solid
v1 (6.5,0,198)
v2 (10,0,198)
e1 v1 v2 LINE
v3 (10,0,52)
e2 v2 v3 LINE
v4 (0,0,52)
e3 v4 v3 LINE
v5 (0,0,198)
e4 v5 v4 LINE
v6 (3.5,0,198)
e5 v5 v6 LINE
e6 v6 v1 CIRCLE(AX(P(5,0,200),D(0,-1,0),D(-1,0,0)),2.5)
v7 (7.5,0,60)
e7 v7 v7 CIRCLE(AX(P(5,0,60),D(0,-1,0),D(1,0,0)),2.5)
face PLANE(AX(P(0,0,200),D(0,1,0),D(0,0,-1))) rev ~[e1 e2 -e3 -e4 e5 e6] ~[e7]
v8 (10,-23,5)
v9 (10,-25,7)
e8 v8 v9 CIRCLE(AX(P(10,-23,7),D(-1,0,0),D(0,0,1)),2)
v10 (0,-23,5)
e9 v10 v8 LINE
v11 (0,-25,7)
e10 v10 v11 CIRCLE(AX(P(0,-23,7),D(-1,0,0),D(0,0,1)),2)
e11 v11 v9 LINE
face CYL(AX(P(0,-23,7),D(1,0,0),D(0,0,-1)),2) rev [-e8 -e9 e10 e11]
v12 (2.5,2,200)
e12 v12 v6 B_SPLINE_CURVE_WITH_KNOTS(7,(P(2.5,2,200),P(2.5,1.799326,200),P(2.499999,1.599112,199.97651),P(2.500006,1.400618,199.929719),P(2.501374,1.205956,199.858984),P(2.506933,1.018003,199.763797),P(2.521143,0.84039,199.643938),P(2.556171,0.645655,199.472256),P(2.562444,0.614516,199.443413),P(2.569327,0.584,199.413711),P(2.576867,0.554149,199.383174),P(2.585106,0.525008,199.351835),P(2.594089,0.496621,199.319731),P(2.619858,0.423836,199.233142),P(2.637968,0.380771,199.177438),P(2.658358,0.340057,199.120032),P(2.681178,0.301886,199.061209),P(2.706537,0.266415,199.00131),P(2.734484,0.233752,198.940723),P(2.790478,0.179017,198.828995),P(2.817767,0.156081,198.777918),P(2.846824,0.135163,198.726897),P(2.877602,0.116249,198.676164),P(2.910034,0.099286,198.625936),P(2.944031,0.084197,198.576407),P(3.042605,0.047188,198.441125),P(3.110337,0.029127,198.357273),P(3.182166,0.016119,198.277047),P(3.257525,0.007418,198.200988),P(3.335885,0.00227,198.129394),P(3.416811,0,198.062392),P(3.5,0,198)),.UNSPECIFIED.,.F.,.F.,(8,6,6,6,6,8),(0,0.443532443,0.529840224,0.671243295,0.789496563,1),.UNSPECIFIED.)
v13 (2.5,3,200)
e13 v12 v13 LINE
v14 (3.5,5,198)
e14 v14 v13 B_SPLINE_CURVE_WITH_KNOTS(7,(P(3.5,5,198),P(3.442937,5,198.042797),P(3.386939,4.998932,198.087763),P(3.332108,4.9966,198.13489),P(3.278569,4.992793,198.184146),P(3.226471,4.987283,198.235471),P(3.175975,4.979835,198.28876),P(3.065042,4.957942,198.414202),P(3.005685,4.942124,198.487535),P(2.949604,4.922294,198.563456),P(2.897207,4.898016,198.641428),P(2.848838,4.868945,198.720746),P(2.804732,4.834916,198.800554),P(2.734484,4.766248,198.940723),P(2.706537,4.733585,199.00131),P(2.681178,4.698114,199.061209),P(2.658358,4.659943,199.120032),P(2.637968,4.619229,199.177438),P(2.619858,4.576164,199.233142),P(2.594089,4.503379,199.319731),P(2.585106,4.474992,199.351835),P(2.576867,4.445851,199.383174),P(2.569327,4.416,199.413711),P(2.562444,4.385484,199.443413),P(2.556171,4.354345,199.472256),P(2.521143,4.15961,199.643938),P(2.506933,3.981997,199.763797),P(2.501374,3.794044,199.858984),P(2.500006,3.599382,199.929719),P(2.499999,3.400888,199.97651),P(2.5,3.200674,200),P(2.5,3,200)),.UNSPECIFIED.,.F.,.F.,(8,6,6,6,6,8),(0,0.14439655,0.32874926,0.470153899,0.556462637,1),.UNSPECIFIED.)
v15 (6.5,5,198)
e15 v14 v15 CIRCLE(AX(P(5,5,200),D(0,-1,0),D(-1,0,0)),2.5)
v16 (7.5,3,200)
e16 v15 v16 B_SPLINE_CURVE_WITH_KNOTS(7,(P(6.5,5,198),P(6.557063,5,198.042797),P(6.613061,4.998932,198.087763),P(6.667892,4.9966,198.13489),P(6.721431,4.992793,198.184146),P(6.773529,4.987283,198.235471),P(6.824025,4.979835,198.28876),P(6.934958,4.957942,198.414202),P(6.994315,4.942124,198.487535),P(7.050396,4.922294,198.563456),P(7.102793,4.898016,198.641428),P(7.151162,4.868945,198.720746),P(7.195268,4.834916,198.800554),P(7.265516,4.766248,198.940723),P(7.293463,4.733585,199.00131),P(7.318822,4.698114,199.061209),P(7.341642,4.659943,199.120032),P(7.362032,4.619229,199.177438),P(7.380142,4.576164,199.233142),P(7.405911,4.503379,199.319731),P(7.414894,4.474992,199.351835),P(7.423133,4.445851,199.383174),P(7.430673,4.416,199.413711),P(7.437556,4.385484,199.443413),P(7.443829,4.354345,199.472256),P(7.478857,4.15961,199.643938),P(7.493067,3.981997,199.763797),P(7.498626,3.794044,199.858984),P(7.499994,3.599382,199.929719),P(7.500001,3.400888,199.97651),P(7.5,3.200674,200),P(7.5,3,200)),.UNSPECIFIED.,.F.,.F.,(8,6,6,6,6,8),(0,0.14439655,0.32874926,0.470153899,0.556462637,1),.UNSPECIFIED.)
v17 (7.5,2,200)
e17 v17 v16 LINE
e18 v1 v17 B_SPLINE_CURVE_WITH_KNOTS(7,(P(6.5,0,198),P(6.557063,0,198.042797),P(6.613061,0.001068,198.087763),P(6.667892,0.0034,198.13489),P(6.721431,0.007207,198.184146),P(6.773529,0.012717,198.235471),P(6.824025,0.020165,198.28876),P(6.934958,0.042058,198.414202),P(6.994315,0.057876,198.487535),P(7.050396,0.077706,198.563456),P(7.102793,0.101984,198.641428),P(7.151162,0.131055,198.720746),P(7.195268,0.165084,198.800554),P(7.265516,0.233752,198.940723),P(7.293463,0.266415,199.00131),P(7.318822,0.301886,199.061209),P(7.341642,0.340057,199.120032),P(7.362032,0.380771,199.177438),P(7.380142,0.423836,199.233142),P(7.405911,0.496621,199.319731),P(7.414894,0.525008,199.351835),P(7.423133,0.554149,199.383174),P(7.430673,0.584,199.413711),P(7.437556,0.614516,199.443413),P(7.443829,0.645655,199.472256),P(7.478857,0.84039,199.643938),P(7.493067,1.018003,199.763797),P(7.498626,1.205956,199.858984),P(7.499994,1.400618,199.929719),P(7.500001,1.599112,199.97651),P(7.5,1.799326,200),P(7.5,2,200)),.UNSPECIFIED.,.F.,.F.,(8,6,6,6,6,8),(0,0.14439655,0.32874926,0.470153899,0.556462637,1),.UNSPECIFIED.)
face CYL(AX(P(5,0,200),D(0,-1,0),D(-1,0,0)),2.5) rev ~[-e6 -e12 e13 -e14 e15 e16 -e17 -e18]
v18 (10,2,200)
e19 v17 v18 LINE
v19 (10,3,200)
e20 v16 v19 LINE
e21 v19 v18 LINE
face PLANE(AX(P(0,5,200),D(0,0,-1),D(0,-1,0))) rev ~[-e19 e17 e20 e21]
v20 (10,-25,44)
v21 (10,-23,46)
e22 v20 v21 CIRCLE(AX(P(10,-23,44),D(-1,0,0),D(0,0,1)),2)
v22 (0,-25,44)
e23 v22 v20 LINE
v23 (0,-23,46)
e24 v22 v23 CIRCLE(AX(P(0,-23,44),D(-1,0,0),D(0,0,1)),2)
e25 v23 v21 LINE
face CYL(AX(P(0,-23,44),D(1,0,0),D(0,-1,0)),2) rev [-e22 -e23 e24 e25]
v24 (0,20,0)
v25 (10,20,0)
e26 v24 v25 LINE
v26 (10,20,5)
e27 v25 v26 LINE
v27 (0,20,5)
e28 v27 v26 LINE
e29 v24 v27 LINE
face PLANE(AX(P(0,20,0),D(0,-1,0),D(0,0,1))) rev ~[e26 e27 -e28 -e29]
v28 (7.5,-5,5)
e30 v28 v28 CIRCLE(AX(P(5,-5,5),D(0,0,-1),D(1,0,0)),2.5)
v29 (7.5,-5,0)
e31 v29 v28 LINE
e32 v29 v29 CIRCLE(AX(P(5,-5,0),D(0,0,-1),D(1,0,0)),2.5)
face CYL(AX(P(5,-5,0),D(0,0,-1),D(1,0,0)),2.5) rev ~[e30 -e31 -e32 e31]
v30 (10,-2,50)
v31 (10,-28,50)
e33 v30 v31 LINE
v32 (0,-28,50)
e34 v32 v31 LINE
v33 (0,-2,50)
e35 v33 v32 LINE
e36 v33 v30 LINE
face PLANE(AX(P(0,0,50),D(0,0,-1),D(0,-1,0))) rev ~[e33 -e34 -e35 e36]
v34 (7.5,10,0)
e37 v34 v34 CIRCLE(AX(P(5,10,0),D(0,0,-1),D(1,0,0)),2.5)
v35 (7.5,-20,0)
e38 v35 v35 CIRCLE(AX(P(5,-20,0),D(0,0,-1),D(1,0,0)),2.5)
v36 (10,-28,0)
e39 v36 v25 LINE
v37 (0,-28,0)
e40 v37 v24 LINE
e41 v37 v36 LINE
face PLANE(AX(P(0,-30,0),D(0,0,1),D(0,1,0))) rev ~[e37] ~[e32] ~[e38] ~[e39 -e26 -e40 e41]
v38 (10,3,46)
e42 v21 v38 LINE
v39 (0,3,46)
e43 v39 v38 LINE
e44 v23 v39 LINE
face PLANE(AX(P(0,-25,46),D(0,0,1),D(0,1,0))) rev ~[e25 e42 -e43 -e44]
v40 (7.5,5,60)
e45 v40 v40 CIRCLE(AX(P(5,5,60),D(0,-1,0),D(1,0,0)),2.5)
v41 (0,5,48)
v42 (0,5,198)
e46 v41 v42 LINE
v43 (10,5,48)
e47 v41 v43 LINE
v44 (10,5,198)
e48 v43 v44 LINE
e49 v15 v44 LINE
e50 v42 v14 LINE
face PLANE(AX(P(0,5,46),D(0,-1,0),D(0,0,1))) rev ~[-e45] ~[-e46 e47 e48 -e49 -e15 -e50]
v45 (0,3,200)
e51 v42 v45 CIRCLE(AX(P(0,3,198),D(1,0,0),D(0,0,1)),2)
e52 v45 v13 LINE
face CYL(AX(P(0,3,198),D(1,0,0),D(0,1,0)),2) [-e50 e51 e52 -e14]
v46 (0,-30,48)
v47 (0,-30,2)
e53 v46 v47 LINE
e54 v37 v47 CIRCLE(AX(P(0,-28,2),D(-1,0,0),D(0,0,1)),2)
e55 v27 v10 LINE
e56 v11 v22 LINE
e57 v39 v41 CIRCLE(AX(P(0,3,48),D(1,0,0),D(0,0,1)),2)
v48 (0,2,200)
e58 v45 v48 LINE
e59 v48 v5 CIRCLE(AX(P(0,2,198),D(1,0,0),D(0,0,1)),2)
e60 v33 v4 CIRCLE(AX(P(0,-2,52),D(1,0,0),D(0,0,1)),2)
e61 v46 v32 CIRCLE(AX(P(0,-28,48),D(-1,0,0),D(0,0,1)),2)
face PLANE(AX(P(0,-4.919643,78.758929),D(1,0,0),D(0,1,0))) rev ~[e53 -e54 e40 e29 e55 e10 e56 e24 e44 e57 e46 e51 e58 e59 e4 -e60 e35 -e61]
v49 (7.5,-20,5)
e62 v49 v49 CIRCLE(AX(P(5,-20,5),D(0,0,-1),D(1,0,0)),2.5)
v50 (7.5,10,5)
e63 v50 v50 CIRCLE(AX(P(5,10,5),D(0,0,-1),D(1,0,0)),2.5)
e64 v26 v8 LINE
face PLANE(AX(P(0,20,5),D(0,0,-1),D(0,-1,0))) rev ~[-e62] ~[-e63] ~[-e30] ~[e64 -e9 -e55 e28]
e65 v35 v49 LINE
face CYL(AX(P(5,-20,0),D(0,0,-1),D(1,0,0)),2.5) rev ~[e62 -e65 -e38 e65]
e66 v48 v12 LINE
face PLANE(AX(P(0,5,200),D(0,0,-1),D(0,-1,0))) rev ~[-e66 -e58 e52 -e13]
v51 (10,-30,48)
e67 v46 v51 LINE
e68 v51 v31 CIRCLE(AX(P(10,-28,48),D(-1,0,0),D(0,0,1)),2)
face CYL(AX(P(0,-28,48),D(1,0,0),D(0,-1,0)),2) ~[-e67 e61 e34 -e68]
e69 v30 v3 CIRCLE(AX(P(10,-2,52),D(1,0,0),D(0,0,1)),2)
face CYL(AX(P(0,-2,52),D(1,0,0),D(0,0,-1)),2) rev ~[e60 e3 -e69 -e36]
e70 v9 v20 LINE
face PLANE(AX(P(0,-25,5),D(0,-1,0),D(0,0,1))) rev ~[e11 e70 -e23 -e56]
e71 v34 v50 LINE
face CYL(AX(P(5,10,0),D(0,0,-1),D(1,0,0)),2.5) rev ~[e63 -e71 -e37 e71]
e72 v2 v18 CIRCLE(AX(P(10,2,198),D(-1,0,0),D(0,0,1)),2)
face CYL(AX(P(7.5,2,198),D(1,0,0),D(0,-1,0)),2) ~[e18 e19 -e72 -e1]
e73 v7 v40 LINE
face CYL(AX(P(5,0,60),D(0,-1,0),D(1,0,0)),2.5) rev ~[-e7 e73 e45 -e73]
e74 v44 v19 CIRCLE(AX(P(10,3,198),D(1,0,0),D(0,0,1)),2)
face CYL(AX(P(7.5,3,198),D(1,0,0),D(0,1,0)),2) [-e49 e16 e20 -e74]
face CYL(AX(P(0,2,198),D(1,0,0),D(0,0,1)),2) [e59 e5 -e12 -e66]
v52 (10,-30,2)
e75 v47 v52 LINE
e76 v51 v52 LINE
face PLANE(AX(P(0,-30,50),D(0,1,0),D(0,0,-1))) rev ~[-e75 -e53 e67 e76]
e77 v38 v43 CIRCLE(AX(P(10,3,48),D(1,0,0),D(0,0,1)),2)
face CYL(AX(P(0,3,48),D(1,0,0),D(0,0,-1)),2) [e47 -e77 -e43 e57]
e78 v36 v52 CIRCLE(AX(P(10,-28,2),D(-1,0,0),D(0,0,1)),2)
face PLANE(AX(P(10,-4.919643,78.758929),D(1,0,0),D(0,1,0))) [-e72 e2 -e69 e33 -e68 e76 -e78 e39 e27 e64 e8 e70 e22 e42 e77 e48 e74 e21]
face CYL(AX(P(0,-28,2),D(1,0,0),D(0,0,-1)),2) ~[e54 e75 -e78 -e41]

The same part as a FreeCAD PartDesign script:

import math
import FreeCAD as App
import Part
import Sketcher


def edges_at(feature, points):
    """Names of the edges that pass closest to the given points."""
    edges = feature.Shape.Edges
    near = lambda p: min(range(len(edges)), key=lambda i: edges[i].distToShape(Part.Vertex(*p))[0])
    return sorted({f"Edge{near(p) + 1}" for p in points})

doc = App.newDocument("Part")
body = doc.addObject("PartDesign::Body", "Body")

# Sketch on YZ plane
sketch1 = doc.addObject("Sketcher::SketchObject", "Sketch")
body.addObject(sketch1)
sketch1.AttachmentSupport = (doc.YZ_Plane, [""])
sketch1.MapMode = "FlatFace"
sketch1.addGeometry(Part.LineSegment(App.Vector(-30, 0, 0), App.Vector(20, 0, 0)), False)
sketch1.addGeometry(Part.LineSegment(App.Vector(20, 0, 0), App.Vector(20, 5, 0)), False)
sketch1.addGeometry(Part.LineSegment(App.Vector(20, 5, 0), App.Vector(-25, 5, 0)), False)
sketch1.addGeometry(Part.LineSegment(App.Vector(-25, 5, 0), App.Vector(-25, 46, 0)), False)
sketch1.addGeometry(Part.LineSegment(App.Vector(-25, 46, 0), App.Vector(5, 46, 0)), False)
sketch1.addGeometry(Part.LineSegment(App.Vector(5, 46, 0), App.Vector(5, 200, 0)), False)
sketch1.addGeometry(Part.LineSegment(App.Vector(5, 200, 0), App.Vector(0, 200, 0)), False)
sketch1.addGeometry(Part.LineSegment(App.Vector(0, 200, 0), App.Vector(0, 50, 0)), False)
sketch1.addGeometry(Part.LineSegment(App.Vector(0, 50, 0), App.Vector(-30, 50, 0)), False)
sketch1.addGeometry(Part.LineSegment(App.Vector(-30, 50, 0), App.Vector(-30, 0, 0)), False)
sketch1.addConstraint(Sketcher.Constraint("Coincident", 0, 2, 1, 1))
sketch1.addConstraint(Sketcher.Constraint("Coincident", 1, 2, 2, 1))
sketch1.addConstraint(Sketcher.Constraint("Coincident", 2, 2, 3, 1))
sketch1.addConstraint(Sketcher.Constraint("Coincident", 3, 2, 4, 1))
sketch1.addConstraint(Sketcher.Constraint("Coincident", 4, 2, 5, 1))
sketch1.addConstraint(Sketcher.Constraint("Coincident", 5, 2, 6, 1))
sketch1.addConstraint(Sketcher.Constraint("Coincident", 6, 2, 7, 1))
sketch1.addConstraint(Sketcher.Constraint("Coincident", 7, 2, 8, 1))
sketch1.addConstraint(Sketcher.Constraint("Coincident", 8, 2, 9, 1))
sketch1.addConstraint(Sketcher.Constraint("Coincident", 9, 2, 0, 1))
sketch1.addConstraint(Sketcher.Constraint("Horizontal", 0))
sketch1.addConstraint(Sketcher.Constraint("Vertical", 1))
sketch1.addConstraint(Sketcher.Constraint("Horizontal", 2))
sketch1.addConstraint(Sketcher.Constraint("Vertical", 3))
sketch1.addConstraint(Sketcher.Constraint("Horizontal", 4))
sketch1.addConstraint(Sketcher.Constraint("Vertical", 5))
sketch1.addConstraint(Sketcher.Constraint("Horizontal", 6))
sketch1.addConstraint(Sketcher.Constraint("Vertical", 7))
sketch1.addConstraint(Sketcher.Constraint("Horizontal", 8))
sketch1.addConstraint(Sketcher.Constraint("Vertical", 9))
sketch1.addConstraint(Sketcher.Constraint("PointOnObject", 0, 2, -1))
sketch1.addConstraint(Sketcher.Constraint("PointOnObject", 6, 2, -2))
sketch1.addConstraint(Sketcher.Constraint("Equal", 4, 8))
sketch1.addConstraint(Sketcher.Constraint("Equal", 6, 1))
sketch1.addConstraint(Sketcher.Constraint("Equal", 0, 9))
sketch1.addConstraint(Sketcher.Constraint("DistanceX", 0, 1, 0, 2, 50.0))
sketch1.addConstraint(Sketcher.Constraint("DistanceX", 2, 2, 2, 1, 45.0))
sketch1.addConstraint(Sketcher.Constraint("DistanceX", 4, 1, 4, 2, 30.0))
sketch1.addConstraint(Sketcher.Constraint("DistanceY", 3, 1, 3, 2, 41.0))
sketch1.addConstraint(Sketcher.Constraint("DistanceY", 5, 1, 5, 2, 154.0))
pad1 = doc.addObject("PartDesign::Pad", "Pad")
body.addObject(pad1)
pad1.Profile = sketch1
pad1.Length = 10

# Sketch on XZ plane
sketch2 = doc.addObject("Sketcher::SketchObject", "Sketch001")
body.addObject(sketch2)
sketch2.AttachmentSupport = (doc.XZ_Plane, [""])
sketch2.MapMode = "FlatFace"
sketch2.addGeometry(Part.ArcOfCircle(Part.Circle(App.Vector(5, 200, 0), App.Vector(0, 0, 1), 2.5), math.radians(180), math.radians(360)), False)
sketch2.addGeometry(Part.LineSegment(App.Vector(7.5, 200, 0), App.Vector(2.5, 200, 0)), False)
sketch2.addGeometry(Part.Circle(App.Vector(5, 60, 0), App.Vector(0, 0, 1), 2.5), False)
sketch2.addConstraint(Sketcher.Constraint("Coincident", 0, 1, 1, 2))
sketch2.addConstraint(Sketcher.Constraint("Coincident", 1, 1, 0, 2))
sketch2.addConstraint(Sketcher.Constraint("Horizontal", 1))
sketch2.addConstraint(Sketcher.Constraint("Equal", 0, 2))
sketch2.addConstraint(Sketcher.Constraint("Vertical", 0, 3, 2, 3))
sketch2.addConstraint(Sketcher.Constraint("Diameter", 2, 5.0))
sketch2.addConstraint(Sketcher.Constraint("DistanceX", -1, 1, 0, 3, 5.0))
sketch2.addConstraint(Sketcher.Constraint("DistanceY", -1, 1, 0, 3, 200.0))
sketch2.addConstraint(Sketcher.Constraint("DistanceY", -1, 1, 2, 3, 60.0))
sketch2.addConstraint(Sketcher.Constraint("DistanceY", -1, 1, 0, 1, 200.0))
pocket1 = doc.addObject("PartDesign::Pocket", "Pocket")
body.addObject(pocket1)
pocket1.Profile = sketch2
pocket1.Type = "ThroughAll"

# Sketch on XY plane
sketch3 = doc.addObject("Sketcher::SketchObject", "Sketch002")
body.addObject(sketch3)
sketch3.AttachmentSupport = (doc.XY_Plane, [""])
sketch3.MapMode = "FlatFace"
sketch3.addGeometry(Part.Circle(App.Vector(5, -20, 0), App.Vector(0, 0, 1), 2.5), False)
sketch3.addGeometry(Part.Circle(App.Vector(5, -5, 0), App.Vector(0, 0, 1), 2.5), False)
sketch3.addGeometry(Part.Circle(App.Vector(5, 10, 0), App.Vector(0, 0, 1), 2.5), False)
sketch3.addConstraint(Sketcher.Constraint("Equal", 0, 1))
sketch3.addConstraint(Sketcher.Constraint("Equal", 1, 2))
sketch3.addConstraint(Sketcher.Constraint("Vertical", 0, 3, 1, 3))
sketch3.addConstraint(Sketcher.Constraint("Vertical", 1, 3, 2, 3))
sketch3.addConstraint(Sketcher.Constraint("Diameter", 0, 5.0))
sketch3.addConstraint(Sketcher.Constraint("DistanceX", -1, 1, 0, 3, 5.0))
sketch3.addConstraint(Sketcher.Constraint("DistanceY", 0, 3, -1, 1, 20.0))
sketch3.addConstraint(Sketcher.Constraint("DistanceY", 1, 3, -1, 1, 5.0))
sketch3.addConstraint(Sketcher.Constraint("DistanceY", -1, 1, 2, 3, 10.0))
pocket2 = doc.addObject("PartDesign::Pocket", "Pocket001")
body.addObject(pocket2)
pocket2.Profile = sketch3
pocket2.Length = 5
pocket2.Reversed = True
doc.recompute()

fillet = doc.addObject("PartDesign::Fillet", "Fillet")
body.addObject(fillet)
fillet.Base = (pocket2, edges_at(pocket2, [
    (5, -30, 50),
    (5, -25, 46),
    (5, -30, 0),
    (5, -25, 5),
    (5, 5, 46),
    (5, 0, 50),
    (1.25, 5, 200),
    (8.75, 5, 200),
    (1.25, 0, 200),
    (8.75, 0, 200),
]))
fillet.Radius = 2

doc.recompute()
